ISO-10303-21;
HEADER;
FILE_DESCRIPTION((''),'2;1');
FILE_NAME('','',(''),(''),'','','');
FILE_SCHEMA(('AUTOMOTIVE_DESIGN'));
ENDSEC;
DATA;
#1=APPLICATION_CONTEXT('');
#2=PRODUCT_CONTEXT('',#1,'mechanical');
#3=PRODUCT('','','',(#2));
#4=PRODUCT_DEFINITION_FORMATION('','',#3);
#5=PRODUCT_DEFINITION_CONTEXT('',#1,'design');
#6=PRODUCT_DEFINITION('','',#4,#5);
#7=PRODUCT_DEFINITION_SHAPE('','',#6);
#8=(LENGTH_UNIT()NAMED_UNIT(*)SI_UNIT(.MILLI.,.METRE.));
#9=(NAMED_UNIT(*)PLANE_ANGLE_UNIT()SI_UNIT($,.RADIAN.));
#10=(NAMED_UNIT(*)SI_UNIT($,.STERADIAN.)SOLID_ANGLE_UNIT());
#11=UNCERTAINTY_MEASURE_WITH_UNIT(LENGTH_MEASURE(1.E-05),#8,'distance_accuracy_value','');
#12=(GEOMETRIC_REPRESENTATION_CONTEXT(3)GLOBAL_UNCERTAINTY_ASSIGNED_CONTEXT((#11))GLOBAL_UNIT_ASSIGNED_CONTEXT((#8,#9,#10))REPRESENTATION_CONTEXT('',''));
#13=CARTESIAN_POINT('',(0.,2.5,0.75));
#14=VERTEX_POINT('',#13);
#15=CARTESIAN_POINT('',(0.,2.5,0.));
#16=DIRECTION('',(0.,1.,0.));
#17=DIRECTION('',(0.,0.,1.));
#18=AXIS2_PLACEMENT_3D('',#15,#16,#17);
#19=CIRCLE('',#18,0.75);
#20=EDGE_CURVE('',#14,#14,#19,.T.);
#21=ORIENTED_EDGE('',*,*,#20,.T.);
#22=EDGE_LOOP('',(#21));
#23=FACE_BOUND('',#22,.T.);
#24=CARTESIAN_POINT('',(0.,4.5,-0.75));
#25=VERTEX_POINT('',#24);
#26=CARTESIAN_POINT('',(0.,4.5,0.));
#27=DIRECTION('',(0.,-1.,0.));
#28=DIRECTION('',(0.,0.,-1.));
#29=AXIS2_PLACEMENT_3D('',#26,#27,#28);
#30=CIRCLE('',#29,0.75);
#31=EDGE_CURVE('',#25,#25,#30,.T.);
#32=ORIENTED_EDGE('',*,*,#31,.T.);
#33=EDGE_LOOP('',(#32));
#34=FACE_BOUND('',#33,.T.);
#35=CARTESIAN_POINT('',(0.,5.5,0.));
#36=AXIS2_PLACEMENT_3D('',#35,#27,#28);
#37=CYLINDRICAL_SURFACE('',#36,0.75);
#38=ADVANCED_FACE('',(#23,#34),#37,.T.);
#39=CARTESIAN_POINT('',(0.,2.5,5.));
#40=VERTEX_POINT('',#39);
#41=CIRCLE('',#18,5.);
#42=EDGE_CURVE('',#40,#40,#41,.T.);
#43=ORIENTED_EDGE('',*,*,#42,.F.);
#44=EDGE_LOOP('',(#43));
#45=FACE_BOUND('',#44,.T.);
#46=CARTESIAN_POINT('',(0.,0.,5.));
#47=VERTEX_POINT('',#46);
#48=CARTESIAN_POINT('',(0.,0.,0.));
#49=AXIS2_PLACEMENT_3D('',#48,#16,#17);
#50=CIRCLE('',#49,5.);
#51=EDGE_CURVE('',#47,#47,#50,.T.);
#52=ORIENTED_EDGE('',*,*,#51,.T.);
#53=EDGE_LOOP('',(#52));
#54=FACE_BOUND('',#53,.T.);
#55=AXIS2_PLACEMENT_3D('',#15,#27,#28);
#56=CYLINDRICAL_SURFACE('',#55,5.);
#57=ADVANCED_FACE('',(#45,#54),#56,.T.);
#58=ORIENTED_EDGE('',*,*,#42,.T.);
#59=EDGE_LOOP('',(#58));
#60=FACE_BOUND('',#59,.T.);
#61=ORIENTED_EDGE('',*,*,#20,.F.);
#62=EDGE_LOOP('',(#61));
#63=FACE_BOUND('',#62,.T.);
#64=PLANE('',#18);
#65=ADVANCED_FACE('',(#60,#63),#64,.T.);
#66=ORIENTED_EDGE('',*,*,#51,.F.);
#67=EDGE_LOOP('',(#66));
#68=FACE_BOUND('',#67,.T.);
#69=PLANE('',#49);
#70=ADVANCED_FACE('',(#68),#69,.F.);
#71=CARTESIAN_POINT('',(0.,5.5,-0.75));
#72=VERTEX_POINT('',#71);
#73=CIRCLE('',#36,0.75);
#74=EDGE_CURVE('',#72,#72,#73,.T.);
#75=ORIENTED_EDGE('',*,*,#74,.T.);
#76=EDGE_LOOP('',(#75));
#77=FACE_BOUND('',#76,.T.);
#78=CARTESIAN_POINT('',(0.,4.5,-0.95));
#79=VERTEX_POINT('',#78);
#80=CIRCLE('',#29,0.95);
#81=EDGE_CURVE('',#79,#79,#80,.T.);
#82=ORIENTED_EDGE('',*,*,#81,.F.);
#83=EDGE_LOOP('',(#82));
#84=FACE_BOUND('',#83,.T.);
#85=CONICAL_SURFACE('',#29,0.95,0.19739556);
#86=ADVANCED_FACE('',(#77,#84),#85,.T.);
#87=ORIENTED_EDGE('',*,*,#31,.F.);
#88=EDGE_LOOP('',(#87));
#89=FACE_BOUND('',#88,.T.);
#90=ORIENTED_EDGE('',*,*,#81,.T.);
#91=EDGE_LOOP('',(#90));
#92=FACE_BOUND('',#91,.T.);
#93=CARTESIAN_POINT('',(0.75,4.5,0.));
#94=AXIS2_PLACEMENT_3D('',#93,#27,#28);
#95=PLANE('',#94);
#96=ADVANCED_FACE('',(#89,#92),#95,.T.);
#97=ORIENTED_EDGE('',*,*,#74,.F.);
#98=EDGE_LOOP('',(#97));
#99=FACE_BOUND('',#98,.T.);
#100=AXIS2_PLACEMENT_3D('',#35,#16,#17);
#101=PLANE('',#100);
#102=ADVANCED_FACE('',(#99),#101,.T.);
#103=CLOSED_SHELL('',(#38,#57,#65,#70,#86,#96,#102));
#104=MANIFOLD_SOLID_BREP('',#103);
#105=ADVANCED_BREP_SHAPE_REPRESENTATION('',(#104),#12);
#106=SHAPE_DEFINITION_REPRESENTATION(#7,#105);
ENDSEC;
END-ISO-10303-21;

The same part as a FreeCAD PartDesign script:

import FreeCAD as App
import Part
import Sketcher
from FreeCAD import Vector

doc = App.newDocument("Part")
body = doc.addObject("PartDesign::Body", "Body")

sketch1 = body.newObject("Sketcher::SketchObject", "Sketch")
sketch1.AttachmentSupport = (doc.getObject("XZ_Plane"), [""])
sketch1.MapMode = "FlatFace"
sketch1.addGeometry(Part.Circle(Vector(0, 0, 0), Vector(0, 0, 1), 5), False)
sketch1.addConstraint([
    Sketcher.Constraint("Coincident", 0, 3, -1, 1),
    Sketcher.Constraint("Diameter", 0, 10.0),
])
pad1 = body.newObject("PartDesign::Pad", "Pad")
pad1.Profile = sketch1
pad1.Length = 2.5
pad1.Reversed = True

sketch2 = body.newObject("Sketcher::SketchObject", "Sketch001")
sketch2.AttachmentSupport = (doc.getObject("XZ_Plane"), [""])
sketch2.MapMode = "FlatFace"
sketch2.AttachmentOffset = App.Placement(Vector(0, 0, -2.5), App.Rotation())
sketch2.addGeometry(Part.Circle(Vector(0, 0, 0), Vector(0, 0, 1), 0.8), False)
sketch2.addConstraint([
    Sketcher.Constraint("Coincident", 0, 3, -1, 1),
    Sketcher.Constraint("Diameter", 0, 1.5),
])
pad2 = body.newObject("PartDesign::Pad", "Pad001")
pad2.Profile = sketch2
pad2.Length = 3
pad2.Reversed = True

sketch3 = body.newObject("Sketcher::SketchObject", "Sketch002")
sketch3.AttachmentSupport = (doc.getObject("XY_Plane"), [""])
sketch3.MapMode = "FlatFace"
sketch3.addGeometry([
    Part.LineSegment(Vector(0.75, 5.5, 0), Vector(0.75, 4.5, 0)),
    Part.LineSegment(Vector(0.75, 4.5, 0), Vector(0.95, 4.5, 0)),
    Part.LineSegment(Vector(0.95, 4.5, 0), Vector(0.75, 5.5, 0)),
], False)
sketch3.addConstraint([
    Sketcher.Constraint("Coincident", 0, 2, 1, 1),
    Sketcher.Constraint("Coincident", 1, 2, 2, 1),
    Sketcher.Constraint("Coincident", 2, 2, 0, 1),
    Sketcher.Constraint("Vertical", 0),
    Sketcher.Constraint("Horizontal", 1),
    Sketcher.Constraint("DistanceY", 0, 2, 0, 1, 1.0),
    Sketcher.Constraint("DistanceX", 1, 1, 1, 2, 0.2),
    Sketcher.Constraint("DistanceY", -1, 1, 0, 2, 4.5),
    Sketcher.Constraint("DistanceX", -1, 1, 0, 2, 0.75),
])
revolution = body.newObject("PartDesign::Revolution", "Revolution")
revolution.Profile = sketch3
revolution.ReferenceAxis = (sketch3, ["V_Axis"])
revolution.Angle = 360

doc.recompute()
